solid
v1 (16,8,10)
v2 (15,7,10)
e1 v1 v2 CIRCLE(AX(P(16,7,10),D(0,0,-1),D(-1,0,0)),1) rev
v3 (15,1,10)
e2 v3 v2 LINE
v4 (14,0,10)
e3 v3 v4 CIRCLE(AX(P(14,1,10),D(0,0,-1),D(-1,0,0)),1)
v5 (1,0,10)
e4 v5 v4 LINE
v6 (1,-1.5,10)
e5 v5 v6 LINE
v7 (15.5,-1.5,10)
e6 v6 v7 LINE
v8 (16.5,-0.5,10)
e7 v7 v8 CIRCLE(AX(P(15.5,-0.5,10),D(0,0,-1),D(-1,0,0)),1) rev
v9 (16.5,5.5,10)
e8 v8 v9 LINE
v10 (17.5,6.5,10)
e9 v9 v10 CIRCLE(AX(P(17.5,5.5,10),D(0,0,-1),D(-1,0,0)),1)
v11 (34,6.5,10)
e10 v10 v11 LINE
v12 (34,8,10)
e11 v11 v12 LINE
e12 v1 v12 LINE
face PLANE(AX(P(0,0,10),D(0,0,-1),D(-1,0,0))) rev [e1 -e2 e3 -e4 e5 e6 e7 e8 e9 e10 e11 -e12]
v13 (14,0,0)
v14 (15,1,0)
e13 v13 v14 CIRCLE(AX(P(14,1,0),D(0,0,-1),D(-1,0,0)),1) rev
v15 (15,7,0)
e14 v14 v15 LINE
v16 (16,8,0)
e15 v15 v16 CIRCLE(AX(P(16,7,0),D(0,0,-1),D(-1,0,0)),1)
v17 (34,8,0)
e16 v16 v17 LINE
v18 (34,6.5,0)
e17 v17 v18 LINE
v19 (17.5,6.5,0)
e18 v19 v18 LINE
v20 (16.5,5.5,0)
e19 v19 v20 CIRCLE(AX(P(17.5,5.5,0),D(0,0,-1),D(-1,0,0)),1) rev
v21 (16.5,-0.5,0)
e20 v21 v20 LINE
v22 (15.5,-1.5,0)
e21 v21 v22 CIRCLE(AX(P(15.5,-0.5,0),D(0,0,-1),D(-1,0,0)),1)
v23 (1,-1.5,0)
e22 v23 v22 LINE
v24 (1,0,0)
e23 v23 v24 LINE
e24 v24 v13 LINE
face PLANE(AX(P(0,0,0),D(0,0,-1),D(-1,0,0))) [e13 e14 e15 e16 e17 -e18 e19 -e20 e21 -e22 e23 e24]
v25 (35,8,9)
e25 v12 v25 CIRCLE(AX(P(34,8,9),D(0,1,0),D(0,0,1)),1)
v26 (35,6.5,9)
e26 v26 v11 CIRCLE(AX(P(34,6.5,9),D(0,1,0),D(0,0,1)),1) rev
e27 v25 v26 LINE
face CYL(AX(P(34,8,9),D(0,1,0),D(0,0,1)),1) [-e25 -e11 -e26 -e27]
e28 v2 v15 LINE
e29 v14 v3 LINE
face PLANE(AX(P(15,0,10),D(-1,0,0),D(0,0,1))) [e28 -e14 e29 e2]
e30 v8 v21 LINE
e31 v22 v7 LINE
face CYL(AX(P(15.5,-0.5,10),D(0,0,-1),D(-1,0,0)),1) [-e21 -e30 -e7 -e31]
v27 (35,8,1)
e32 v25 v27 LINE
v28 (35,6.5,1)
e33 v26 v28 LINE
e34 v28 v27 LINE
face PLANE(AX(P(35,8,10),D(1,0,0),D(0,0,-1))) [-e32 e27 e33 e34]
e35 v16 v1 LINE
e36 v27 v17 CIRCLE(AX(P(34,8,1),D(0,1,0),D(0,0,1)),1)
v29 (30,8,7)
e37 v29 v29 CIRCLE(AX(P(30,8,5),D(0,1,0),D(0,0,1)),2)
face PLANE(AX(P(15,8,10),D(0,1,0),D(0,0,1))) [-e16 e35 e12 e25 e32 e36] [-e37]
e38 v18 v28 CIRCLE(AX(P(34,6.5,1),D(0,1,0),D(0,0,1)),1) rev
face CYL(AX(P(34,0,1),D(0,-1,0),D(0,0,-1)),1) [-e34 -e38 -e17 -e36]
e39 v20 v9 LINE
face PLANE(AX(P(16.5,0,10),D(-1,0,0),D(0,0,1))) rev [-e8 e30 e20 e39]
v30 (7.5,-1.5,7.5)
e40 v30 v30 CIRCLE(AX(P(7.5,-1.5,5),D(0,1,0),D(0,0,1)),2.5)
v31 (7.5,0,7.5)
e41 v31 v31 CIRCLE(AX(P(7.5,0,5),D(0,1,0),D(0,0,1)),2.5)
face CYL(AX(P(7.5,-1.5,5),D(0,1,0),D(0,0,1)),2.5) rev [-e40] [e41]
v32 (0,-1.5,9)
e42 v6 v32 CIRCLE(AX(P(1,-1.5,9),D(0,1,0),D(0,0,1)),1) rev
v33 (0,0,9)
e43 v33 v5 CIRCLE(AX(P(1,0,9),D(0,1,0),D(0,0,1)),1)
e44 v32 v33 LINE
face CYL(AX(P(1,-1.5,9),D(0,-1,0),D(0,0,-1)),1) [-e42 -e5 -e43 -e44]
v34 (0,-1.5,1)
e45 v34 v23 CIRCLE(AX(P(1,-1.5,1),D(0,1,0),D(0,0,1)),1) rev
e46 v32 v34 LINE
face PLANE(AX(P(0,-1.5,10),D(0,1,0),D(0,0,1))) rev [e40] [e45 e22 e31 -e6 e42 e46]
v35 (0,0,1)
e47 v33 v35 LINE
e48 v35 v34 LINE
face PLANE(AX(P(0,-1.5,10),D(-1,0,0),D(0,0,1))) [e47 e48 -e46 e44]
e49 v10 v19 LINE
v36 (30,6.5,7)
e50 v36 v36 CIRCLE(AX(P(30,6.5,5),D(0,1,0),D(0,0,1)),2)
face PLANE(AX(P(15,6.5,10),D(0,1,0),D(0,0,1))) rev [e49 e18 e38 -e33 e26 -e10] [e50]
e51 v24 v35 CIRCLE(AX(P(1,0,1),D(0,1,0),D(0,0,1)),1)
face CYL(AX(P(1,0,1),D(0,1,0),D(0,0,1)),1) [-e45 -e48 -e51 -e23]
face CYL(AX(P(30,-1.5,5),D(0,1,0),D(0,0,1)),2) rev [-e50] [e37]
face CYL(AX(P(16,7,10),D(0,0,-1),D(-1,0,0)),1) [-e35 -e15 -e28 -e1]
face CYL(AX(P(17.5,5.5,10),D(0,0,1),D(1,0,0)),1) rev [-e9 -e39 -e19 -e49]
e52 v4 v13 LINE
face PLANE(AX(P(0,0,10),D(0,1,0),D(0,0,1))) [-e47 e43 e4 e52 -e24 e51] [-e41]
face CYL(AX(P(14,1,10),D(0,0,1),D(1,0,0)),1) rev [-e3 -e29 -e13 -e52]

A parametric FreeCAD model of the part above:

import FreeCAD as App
import Part
import Sketcher


def edges_at(feature, points):
    """Names of the edges that pass closest to the given points."""
    edges = feature.Shape.Edges
    near = lambda p: min(range(len(edges)), key=lambda i: edges[i].distToShape(Part.Vertex(*p))[0])
    return sorted({f"Edge{near(p) + 1}" for p in points})

doc = App.newDocument("Part")
body = doc.addObject("PartDesign::Body", "Body")

# Sketch on XY plane
sketch1 = body.newObject("Sketcher::SketchObject", "Sketch")
sketch1.AttachmentSupport = (doc.getObject("XY_Plane"), [""])
sketch1.MapMode = "FlatFace"
sketch1.addGeometry(Part.LineSegment(App.Vector(15, 0, 0), App.Vector(0, 0, 0)), False)
sketch1.addGeometry(Part.LineSegment(App.Vector(0, 0, 0), App.Vector(0, -1.5, 0)), False)
sketch1.addGeometry(Part.LineSegment(App.Vector(0, -1.5, 0), App.Vector(16.5, -1.5, 0)), False)
sketch1.addGeometry(Part.LineSegment(App.Vector(16.5, -1.5, 0), App.Vector(16.5, 6.5, 0)), False)
sketch1.addGeometry(Part.LineSegment(App.Vector(16.5, 6.5, 0), App.Vector(35, 6.5, 0)), False)
sketch1.addGeometry(Part.LineSegment(App.Vector(35, 6.5, 0), App.Vector(35, 8, 0)), False)
sketch1.addGeometry(Part.LineSegment(App.Vector(35, 8, 0), App.Vector(15, 8, 0)), False)
sketch1.addGeometry(Part.LineSegment(App.Vector(15, 8, 0), App.Vector(15, 0, 0)), False)
sketch1.addConstraint(Sketcher.Constraint("Coincident", 0, 2, 1, 1))
sketch1.addConstraint(Sketcher.Constraint("Coincident", 1, 2, 2, 1))
sketch1.addConstraint(Sketcher.Constraint("Coincident", 2, 2, 3, 1))
sketch1.addConstraint(Sketcher.Constraint("Coincident", 3, 2, 4, 1))
sketch1.addConstraint(Sketcher.Constraint("Coincident", 4, 2, 5, 1))
sketch1.addConstraint(Sketcher.Constraint("Coincident", 5, 2, 6, 1))
sketch1.addConstraint(Sketcher.Constraint("Coincident", 6, 2, 7, 1))
sketch1.addConstraint(Sketcher.Constraint("Coincident", 7, 2, 0, 1))
sketch1.addConstraint(Sketcher.Constraint("Horizontal", 0))
sketch1.addConstraint(Sketcher.Constraint("Vertical", 1))
sketch1.addConstraint(Sketcher.Constraint("Horizontal", 2))
sketch1.addConstraint(Sketcher.Constraint("Vertical", 3))
sketch1.addConstraint(Sketcher.Constraint("Horizontal", 4))
sketch1.addConstraint(Sketcher.Constraint("Vertical", 5))
sketch1.addConstraint(Sketcher.Constraint("Horizontal", 6))
sketch1.addConstraint(Sketcher.Constraint("Vertical", 7))
sketch1.addConstraint(Sketcher.Constraint("Coincident", 0, 2, -1, 1))
sketch1.addConstraint(Sketcher.Constraint("Equal", 1, 5))
sketch1.addConstraint(Sketcher.Constraint("DistanceX", 0, 2, 0, 1, 15.0))
sketch1.addConstraint(Sketcher.Constraint("DistanceX", 6, 2, 6, 1, 20.0))
sketch1.addConstraint(Sketcher.Constraint("DistanceY", 3, 1, 3, 2, 8.0))
sketch1.addConstraint(Sketcher.Constraint("DistanceX", 2, 1, 2, 2, 16.5))
sketch1.addConstraint(Sketcher.Constraint("DistanceY", 1, 2, 1, 1, 1.5))
pad1 = body.newObject("PartDesign::Pad", "Pad")
pad1.Profile = sketch1
pad1.Length = 10

# Sketch on XZ plane
sketch2 = body.newObject("Sketcher::SketchObject", "Sketch001")
sketch2.AttachmentSupport = (doc.getObject("XZ_Plane"), [""])
sketch2.MapMode = "FlatFace"
sketch2.AttachmentOffset = App.Placement(App.Vector(0, 0, -8), App.Rotation())
sketch2.addGeometry(Part.Circle(App.Vector(30, 5, 0), App.Vector(0, 0, 1), 2), False)
sketch2.addGeometry(Part.Circle(App.Vector(7.5, 5, 0), App.Vector(0, 0, 1), 2.5), False)
sketch2.addConstraint(Sketcher.Constraint("Horizontal", 0, 3, 1, 3))
sketch2.addConstraint(Sketcher.Constraint("Diameter", 0, 4.0))
sketch2.addConstraint(Sketcher.Constraint("Diameter", 1, 5.0))
sketch2.addConstraint(Sketcher.Constraint("DistanceX", -1, 1, 0, 3, 30.0))
sketch2.addConstraint(Sketcher.Constraint("DistanceY", -1, 1, 0, 3, 5.0))
sketch2.addConstraint(Sketcher.Constraint("DistanceX", -1, 1, 1, 3, 7.5))
pocket1 = body.newObject("PartDesign::Pocket", "Pocket")
pocket1.Profile = sketch2
pocket1.Type = "ThroughAll"
pocket1.Reversed = True
doc.recompute()

fillet = body.newObject("PartDesign::Fillet", "Fillet")
fillet.Base = (pocket1, edges_at(pocket1, [
    (16.5, 6.5, 5),
    (16.5, -1.5, 5),
    (15, 0, 5),
    (15, 8, 5),
    (0, -0.75, 10),
    (0, -0.75, 0),
    (35, 7.25, 10),
    (35, 7.25, 0),
]))
fillet.Radius = 1

doc.recompute()
